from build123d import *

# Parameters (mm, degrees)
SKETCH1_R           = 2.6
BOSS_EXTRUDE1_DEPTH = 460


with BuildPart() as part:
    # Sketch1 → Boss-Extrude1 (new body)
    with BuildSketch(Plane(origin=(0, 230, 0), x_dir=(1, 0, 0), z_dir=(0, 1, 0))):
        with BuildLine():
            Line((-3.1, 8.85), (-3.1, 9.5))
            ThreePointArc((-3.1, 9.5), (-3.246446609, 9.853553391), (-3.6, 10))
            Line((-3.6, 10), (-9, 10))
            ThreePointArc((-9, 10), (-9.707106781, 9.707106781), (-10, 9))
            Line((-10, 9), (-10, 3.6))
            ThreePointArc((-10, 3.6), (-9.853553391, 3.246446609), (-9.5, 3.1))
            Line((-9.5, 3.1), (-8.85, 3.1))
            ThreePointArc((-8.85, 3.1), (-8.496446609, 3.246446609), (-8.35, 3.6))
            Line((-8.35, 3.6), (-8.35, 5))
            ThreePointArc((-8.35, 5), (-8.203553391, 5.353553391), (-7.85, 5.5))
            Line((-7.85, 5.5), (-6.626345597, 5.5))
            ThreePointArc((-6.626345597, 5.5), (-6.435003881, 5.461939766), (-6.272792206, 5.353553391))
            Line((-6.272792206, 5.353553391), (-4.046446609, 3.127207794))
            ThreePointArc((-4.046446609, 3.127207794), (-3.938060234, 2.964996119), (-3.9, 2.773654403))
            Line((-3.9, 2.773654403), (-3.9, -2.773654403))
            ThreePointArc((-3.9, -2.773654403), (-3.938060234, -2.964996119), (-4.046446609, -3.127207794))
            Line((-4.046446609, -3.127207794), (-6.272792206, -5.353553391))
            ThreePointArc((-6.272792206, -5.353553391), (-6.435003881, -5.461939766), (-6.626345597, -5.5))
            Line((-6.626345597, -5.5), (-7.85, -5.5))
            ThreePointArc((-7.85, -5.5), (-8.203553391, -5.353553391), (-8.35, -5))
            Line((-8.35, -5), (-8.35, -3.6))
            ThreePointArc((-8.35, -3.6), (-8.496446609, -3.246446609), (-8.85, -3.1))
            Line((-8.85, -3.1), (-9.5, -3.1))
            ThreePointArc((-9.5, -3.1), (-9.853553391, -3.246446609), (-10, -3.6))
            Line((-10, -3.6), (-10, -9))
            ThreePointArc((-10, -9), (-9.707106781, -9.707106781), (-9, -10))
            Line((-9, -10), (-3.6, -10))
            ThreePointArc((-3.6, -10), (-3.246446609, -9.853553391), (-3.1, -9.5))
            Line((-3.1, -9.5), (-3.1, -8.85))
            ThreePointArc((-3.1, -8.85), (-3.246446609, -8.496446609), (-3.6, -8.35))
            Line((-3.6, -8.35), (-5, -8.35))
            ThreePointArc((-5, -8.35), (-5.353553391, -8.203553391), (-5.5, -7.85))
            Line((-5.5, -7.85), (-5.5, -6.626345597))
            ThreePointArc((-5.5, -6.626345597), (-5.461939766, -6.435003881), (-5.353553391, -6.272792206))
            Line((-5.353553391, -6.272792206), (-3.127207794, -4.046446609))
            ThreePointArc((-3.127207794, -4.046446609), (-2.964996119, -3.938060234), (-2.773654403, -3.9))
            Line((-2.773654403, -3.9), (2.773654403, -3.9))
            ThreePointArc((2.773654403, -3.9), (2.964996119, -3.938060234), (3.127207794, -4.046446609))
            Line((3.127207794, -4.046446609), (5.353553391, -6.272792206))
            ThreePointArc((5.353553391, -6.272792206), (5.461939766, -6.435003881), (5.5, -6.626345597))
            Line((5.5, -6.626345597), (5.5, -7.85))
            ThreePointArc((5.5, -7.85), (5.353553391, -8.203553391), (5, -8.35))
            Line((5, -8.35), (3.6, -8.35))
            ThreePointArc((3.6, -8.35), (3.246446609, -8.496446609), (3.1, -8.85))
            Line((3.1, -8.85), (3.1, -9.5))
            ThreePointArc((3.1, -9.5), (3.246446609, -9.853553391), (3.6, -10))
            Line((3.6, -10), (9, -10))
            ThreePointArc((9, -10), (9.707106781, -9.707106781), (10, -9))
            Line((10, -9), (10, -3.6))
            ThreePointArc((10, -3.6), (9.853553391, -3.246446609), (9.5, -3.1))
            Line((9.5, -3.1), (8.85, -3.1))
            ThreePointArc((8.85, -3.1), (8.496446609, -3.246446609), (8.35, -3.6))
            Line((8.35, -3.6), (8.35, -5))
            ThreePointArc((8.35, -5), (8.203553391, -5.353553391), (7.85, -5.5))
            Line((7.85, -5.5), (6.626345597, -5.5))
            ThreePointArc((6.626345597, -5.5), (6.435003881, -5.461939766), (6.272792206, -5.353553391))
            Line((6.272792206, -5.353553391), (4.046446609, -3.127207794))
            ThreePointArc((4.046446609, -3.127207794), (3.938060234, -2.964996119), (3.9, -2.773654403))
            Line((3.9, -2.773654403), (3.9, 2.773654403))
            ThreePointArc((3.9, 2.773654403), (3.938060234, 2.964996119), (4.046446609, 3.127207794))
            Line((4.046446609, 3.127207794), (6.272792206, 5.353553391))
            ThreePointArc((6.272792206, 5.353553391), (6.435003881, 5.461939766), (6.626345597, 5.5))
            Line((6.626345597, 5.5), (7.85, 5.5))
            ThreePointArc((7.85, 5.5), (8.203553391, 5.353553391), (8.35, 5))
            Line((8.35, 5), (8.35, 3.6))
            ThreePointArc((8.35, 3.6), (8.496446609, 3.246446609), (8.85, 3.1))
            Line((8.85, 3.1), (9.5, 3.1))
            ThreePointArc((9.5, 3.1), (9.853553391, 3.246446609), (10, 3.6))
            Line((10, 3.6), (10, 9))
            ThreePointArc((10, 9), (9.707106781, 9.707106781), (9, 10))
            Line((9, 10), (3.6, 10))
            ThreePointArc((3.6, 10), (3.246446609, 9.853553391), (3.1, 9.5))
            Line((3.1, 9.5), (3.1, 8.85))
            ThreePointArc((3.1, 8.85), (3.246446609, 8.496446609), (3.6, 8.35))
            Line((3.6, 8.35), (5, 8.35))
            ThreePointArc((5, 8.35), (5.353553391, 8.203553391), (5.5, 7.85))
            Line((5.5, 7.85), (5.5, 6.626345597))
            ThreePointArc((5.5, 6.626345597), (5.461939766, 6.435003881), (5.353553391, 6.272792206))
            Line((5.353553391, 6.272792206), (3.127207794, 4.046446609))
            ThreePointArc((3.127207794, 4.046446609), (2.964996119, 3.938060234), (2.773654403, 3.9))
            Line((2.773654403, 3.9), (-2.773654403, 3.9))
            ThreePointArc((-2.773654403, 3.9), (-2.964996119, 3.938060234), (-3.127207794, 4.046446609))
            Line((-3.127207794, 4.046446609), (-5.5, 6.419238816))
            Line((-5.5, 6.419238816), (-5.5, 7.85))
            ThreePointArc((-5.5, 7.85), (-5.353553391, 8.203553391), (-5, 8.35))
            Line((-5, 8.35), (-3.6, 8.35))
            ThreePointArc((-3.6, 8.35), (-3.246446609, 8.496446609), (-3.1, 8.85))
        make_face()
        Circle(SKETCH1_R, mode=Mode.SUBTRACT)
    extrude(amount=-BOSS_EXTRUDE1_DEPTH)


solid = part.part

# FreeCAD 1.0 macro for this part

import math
import FreeCAD as App
import Part
import Sketcher
from FreeCAD import Vector

doc = App.newDocument("Part")
body = doc.addObject("PartDesign::Body", "Body")

# Sketch on XZ plane
sketch1 = body.newObject("Sketcher::SketchObject", "Sketch")
sketch1.AttachmentSupport = (doc.getObject("XZ_Plane"), [""])
sketch1.MapMode = "FlatFace"
sketch1.AttachmentOffset = App.Placement(Vector(0, 0, -230), App.Rotation())
sketch1.addGeometry([
    Part.LineSegment(Vector(-3.1, -8.85, 0), Vector(-3.1, -9.5, 0)),  # 0
    Part.ArcOfCircle(Part.Circle(Vector(-3.6, -9.5, 0), Vector(0, 0, 1), 0.5), math.radians(-90), math.radians(0)),  # 1
    Part.LineSegment(Vector(-3.6, -10, 0), Vector(-9, -10, 0)),  # 2
    Part.ArcOfCircle(Part.Circle(Vector(-9, -9, 0), Vector(0, 0, 1), 1), math.radians(-180), math.radians(-90)),  # 3
    Part.LineSegment(Vector(-10, -9, 0), Vector(-10, -3.6, 0)),  # 4
    Part.ArcOfCircle(Part.Circle(Vector(-9.5, -3.6, 0), Vector(0, 0, 1), 0.5), math.radians(90), math.radians(180)),  # 5
    Part.LineSegment(Vector(-9.5, -3.1, 0), Vector(-8.85, -3.1, 0)),  # 6
    Part.ArcOfCircle(Part.Circle(Vector(-8.85, -3.6, 0), Vector(0, 0, 1), 0.5), math.radians(0), math.radians(90)),  # 7
    Part.LineSegment(Vector(-8.35, -3.6, 0), Vector(-8.35, -5, 0)),  # 8
    Part.ArcOfCircle(Part.Circle(Vector(-7.85, -5, 0), Vector(0, 0, 1), 0.5), math.radians(180), math.radians(270)),  # 9
    Part.LineSegment(Vector(-7.85, -5.5, 0), Vector(-6.63, -5.5, 0)),  # 10
    Part.ArcOfCircle(Part.Circle(Vector(-6.63, -5, 0), Vector(0, 0, 1), 0.5), math.radians(-90), math.radians(-45)),  # 11
    Part.LineSegment(Vector(-6.27, -5.35, 0), Vector(-4.05, -3.13, 0)),  # 12
    Part.ArcOfCircle(Part.Circle(Vector(-4.4, -2.77, 0), Vector(0, 0, 1), 0.5), math.radians(-45), math.radians(0)),  # 13
    Part.LineSegment(Vector(-3.9, -2.77, 0), Vector(-3.9, 2.77, 0)),  # 14
    Part.ArcOfCircle(Part.Circle(Vector(-4.4, 2.77, 0), Vector(0, 0, 1), 0.5), math.radians(0), math.radians(45)),  # 15
    Part.LineSegment(Vector(-4.05, 3.13, 0), Vector(-6.27, 5.35, 0)),  # 16
    Part.ArcOfCircle(Part.Circle(Vector(-6.63, 5, 0), Vector(0, 0, 1), 0.5), math.radians(45), math.radians(90)),  # 17
    Part.LineSegment(Vector(-6.63, 5.5, 0), Vector(-7.85, 5.5, 0)),  # 18
    Part.ArcOfCircle(Part.Circle(Vector(-7.85, 5, 0), Vector(0, 0, 1), 0.5), math.radians(90), math.radians(180)),  # 19
    Part.LineSegment(Vector(-8.35, 5, 0), Vector(-8.35, 3.6, 0)),  # 20
    Part.ArcOfCircle(Part.Circle(Vector(-8.85, 3.6, 0), Vector(0, 0, 1), 0.5), math.radians(-90), math.radians(0)),  # 21
    Part.LineSegment(Vector(-8.85, 3.1, 0), Vector(-9.5, 3.1, 0)),  # 22
    Part.ArcOfCircle(Part.Circle(Vector(-9.5, 3.6, 0), Vector(0, 0, 1), 0.5), math.radians(180), math.radians(270)),  # 23
    Part.LineSegment(Vector(-10, 3.6, 0), Vector(-10, 9, 0)),  # 24
    Part.ArcOfCircle(Part.Circle(Vector(-9, 9, 0), Vector(0, 0, 1), 1), math.radians(90), math.radians(180)),  # 25
    Part.LineSegment(Vector(-9, 10, 0), Vector(-3.6, 10, 0)),  # 26
    Part.ArcOfCircle(Part.Circle(Vector(-3.6, 9.5, 0), Vector(0, 0, 1), 0.5), math.radians(0), math.radians(90)),  # 27
    Part.LineSegment(Vector(-3.1, 9.5, 0), Vector(-3.1, 8.85, 0)),  # 28
    Part.ArcOfCircle(Part.Circle(Vector(-3.6, 8.85, 0), Vector(0, 0, 1), 0.5), math.radians(-90), math.radians(0)),  # 29
    Part.LineSegment(Vector(-3.6, 8.35, 0), Vector(-5, 8.35, 0)),  # 30
    Part.ArcOfCircle(Part.Circle(Vector(-5, 7.85, 0), Vector(0, 0, 1), 0.5), math.radians(90), math.radians(180)),  # 31
    Part.LineSegment(Vector(-5.5, 7.85, 0), Vector(-5.5, 6.63, 0)),  # 32
    Part.ArcOfCircle(Part.Circle(Vector(-5, 6.63, 0), Vector(0, 0, 1), 0.5), math.radians(-180), math.radians(-135)),  # 33
    Part.LineSegment(Vector(-5.35, 6.27, 0), Vector(-3.13, 4.05, 0)),  # 34
    Part.ArcOfCircle(Part.Circle(Vector(-2.77, 4.4, 0), Vector(0, 0, 1), 0.5), math.radians(-135), math.radians(-90)),  # 35
    Part.LineSegment(Vector(-2.77, 3.9, 0), Vector(2.77, 3.9, 0)),  # 36
    Part.ArcOfCircle(Part.Circle(Vector(2.77, 4.4, 0), Vector(0, 0, 1), 0.5), math.radians(-90), math.radians(-45)),  # 37
    Part.LineSegment(Vector(3.13, 4.05, 0), Vector(5.35, 6.27, 0)),  # 38
    Part.ArcOfCircle(Part.Circle(Vector(5, 6.63, 0), Vector(0, 0, 1), 0.5), math.radians(-45), math.radians(0)),  # 39
    Part.LineSegment(Vector(5.5, 6.63, 0), Vector(5.5, 7.85, 0)),  # 40
    Part.ArcOfCircle(Part.Circle(Vector(5, 7.85, 0), Vector(0, 0, 1), 0.5), math.radians(0), math.radians(90)),  # 41
    Part.LineSegment(Vector(5, 8.35, 0), Vector(3.6, 8.35, 0)),  # 42
    Part.ArcOfCircle(Part.Circle(Vector(3.6, 8.85, 0), Vector(0, 0, 1), 0.5), math.radians(180), math.radians(270)),  # 43
    Part.LineSegment(Vector(3.1, 8.85, 0), Vector(3.1, 9.5, 0)),  # 44
    Part.ArcOfCircle(Part.Circle(Vector(3.6, 9.5, 0), Vector(0, 0, 1), 0.5), math.radians(90), math.radians(180)),  # 45
    Part.LineSegment(Vector(3.6, 10, 0), Vector(9, 10, 0)),  # 46
    Part.ArcOfCircle(Part.Circle(Vector(9, 9, 0), Vector(0, 0, 1), 1), math.radians(0), math.radians(90)),  # 47
    Part.LineSegment(Vector(10, 9, 0), Vector(10, 3.6, 0)),  # 48
    Part.ArcOfCircle(Part.Circle(Vector(9.5, 3.6, 0), Vector(0, 0, 1), 0.5), math.radians(-90), math.radians(0)),  # 49
    Part.LineSegment(Vector(9.5, 3.1, 0), Vector(8.85, 3.1, 0)),  # 50
    Part.ArcOfCircle(Part.Circle(Vector(8.85, 3.6, 0), Vector(0, 0, 1), 0.5), math.radians(180), math.radians(270)),  # 51
    Part.LineSegment(Vector(8.35, 3.6, 0), Vector(8.35, 5, 0)),  # 52
    Part.ArcOfCircle(Part.Circle(Vector(7.85, 5, 0), Vector(0, 0, 1), 0.5), math.radians(0), math.radians(90)),  # 53
    Part.LineSegment(Vector(7.85, 5.5, 0), Vector(6.63, 5.5, 0)),  # 54
    Part.ArcOfCircle(Part.Circle(Vector(6.63, 5, 0), Vector(0, 0, 1), 0.5), math.radians(90), math.radians(135)),  # 55
    Part.LineSegment(Vector(6.27, 5.35, 0), Vector(4.05, 3.13, 0)),  # 56
    Part.ArcOfCircle(Part.Circle(Vector(4.4, 2.77, 0), Vector(0, 0, 1), 0.5), math.radians(135), math.radians(180)),  # 57
    Part.LineSegment(Vector(3.9, 2.77, 0), Vector(3.9, -2.77, 0)),  # 58
    Part.ArcOfCircle(Part.Circle(Vector(4.4, -2.77, 0), Vector(0, 0, 1), 0.5), math.radians(-180), math.radians(-135)),  # 59
    Part.LineSegment(Vector(4.05, -3.13, 0), Vector(6.27, -5.35, 0)),  # 60
    Part.ArcOfCircle(Part.Circle(Vector(6.63, -5, 0), Vector(0, 0, 1), 0.5), math.radians(-135), math.radians(-90)),  # 61
    Part.LineSegment(Vector(6.63, -5.5, 0), Vector(7.85, -5.5, 0)),  # 62
    Part.ArcOfCircle(Part.Circle(Vector(7.85, -5, 0), Vector(0, 0, 1), 0.5), math.radians(-90), math.radians(0)),  # 63
    Part.LineSegment(Vector(8.35, -5, 0), Vector(8.35, -3.6, 0)),  # 64
    Part.ArcOfCircle(Part.Circle(Vector(8.85, -3.6, 0), Vector(0, 0, 1), 0.5), math.radians(90), math.radians(180)),  # 65
    Part.LineSegment(Vector(8.85, -3.1, 0), Vector(9.5, -3.1, 0)),  # 66
    Part.ArcOfCircle(Part.Circle(Vector(9.5, -3.6, 0), Vector(0, 0, 1), 0.5), math.radians(0), math.radians(90)),  # 67
    Part.LineSegment(Vector(10, -3.6, 0), Vector(10, -9, 0)),  # 68
    Part.ArcOfCircle(Part.Circle(Vector(9, -9, 0), Vector(0, 0, 1), 1), math.radians(-90), math.radians(0)),  # 69
    Part.LineSegment(Vector(9, -10, 0), Vector(3.6, -10, 0)),  # 70
    Part.ArcOfCircle(Part.Circle(Vector(3.6, -9.5, 0), Vector(0, 0, 1), 0.5), math.radians(180), math.radians(270)),  # 71
    Part.LineSegment(Vector(3.1, -9.5, 0), Vector(3.1, -8.85, 0)),  # 72
    Part.ArcOfCircle(Part.Circle(Vector(3.6, -8.85, 0), Vector(0, 0, 1), 0.5), math.radians(90), math.radians(180)),  # 73
    Part.LineSegment(Vector(3.6, -8.35, 0), Vector(5, -8.35, 0)),  # 74
    Part.ArcOfCircle(Part.Circle(Vector(5, -7.85, 0), Vector(0, 0, 1), 0.5), math.radians(-90), math.radians(0)),  # 75
    Part.LineSegment(Vector(5.5, -7.85, 0), Vector(5.5, -6.63, 0)),  # 76
    Part.ArcOfCircle(Part.Circle(Vector(5, -6.63, 0), Vector(0, 0, 1), 0.5), math.radians(0), math.radians(45)),  # 77
    Part.LineSegment(Vector(5.35, -6.27, 0), Vector(3.13, -4.05, 0)),  # 78
    Part.ArcOfCircle(Part.Circle(Vector(2.77, -4.4, 0), Vector(0, 0, 1), 0.5), math.radians(45), math.radians(90)),  # 79
    Part.LineSegment(Vector(2.77, -3.9, 0), Vector(-2.77, -3.9, 0)),  # 80
    Part.ArcOfCircle(Part.Circle(Vector(-2.77, -4.4, 0), Vector(0, 0, 1), 0.5), math.radians(90), math.radians(135)),  # 81
    Part.LineSegment(Vector(-3.13, -4.05, 0), Vector(-5.5, -6.42, 0)),  # 82
    Part.LineSegment(Vector(-5.5, -6.42, 0), Vector(-5.5, -7.85, 0)),  # 83
    Part.ArcOfCircle(Part.Circle(Vector(-5, -7.85, 0), Vector(0, 0, 1), 0.5), math.radians(180), math.radians(270)),  # 84
    Part.LineSegment(Vector(-5, -8.35, 0), Vector(-3.6, -8.35, 0)),  # 85
    Part.ArcOfCircle(Part.Circle(Vector(-3.6, -8.85, 0), Vector(0, 0, 1), 0.5), math.radians(0), math.radians(90)),  # 86
    Part.Circle(Vector(0, 0, 0), Vector(0, 0, 1), 2.6),  # 87
], False)
sketch1.addConstraint([
    Sketcher.Constraint("Tangent", 0, 2, 1, 2),
    Sketcher.Constraint("Tangent", 1, 1, 2, 1),
    Sketcher.Constraint("Tangent", 2, 2, 3, 2),
    Sketcher.Constraint("Tangent", 3, 1, 4, 1),
    Sketcher.Constraint("Tangent", 4, 2, 5, 2),
    Sketcher.Constraint("Tangent", 5, 1, 6, 1),
    Sketcher.Constraint("Tangent", 6, 2, 7, 2),
    Sketcher.Constraint("Tangent", 7, 1, 8, 1),
    Sketcher.Constraint("Tangent", 8, 2, 9, 1),
    Sketcher.Constraint("Tangent", 9, 2, 10, 1),
    Sketcher.Constraint("Tangent", 10, 2, 11, 1),
    Sketcher.Constraint("Tangent", 11, 2, 12, 1),
    Sketcher.Constraint("Tangent", 12, 2, 13, 1),
    Sketcher.Constraint("Tangent", 13, 2, 14, 1),
    Sketcher.Constraint("Tangent", 14, 2, 15, 1),
    Sketcher.Constraint("Tangent", 15, 2, 16, 1),
    Sketcher.Constraint("Tangent", 16, 2, 17, 1),
    Sketcher.Constraint("Tangent", 17, 2, 18, 1),
    Sketcher.Constraint("Tangent", 18, 2, 19, 1),
    Sketcher.Constraint("Tangent", 19, 2, 20, 1),
    Sketcher.Constraint("Tangent", 20, 2, 21, 2),
    Sketcher.Constraint("Tangent", 21, 1, 22, 1),
    Sketcher.Constraint("Tangent", 22, 2, 23, 2),
    Sketcher.Constraint("Tangent", 23, 1, 24, 1),
    Sketcher.Constraint("Tangent", 24, 2, 25, 2),
    Sketcher.Constraint("Tangent", 25, 1, 26, 1),
    Sketcher.Constraint("Tangent", 26, 2, 27, 2),
    Sketcher.Constraint("Tangent", 27, 1, 28, 1),
    Sketcher.Constraint("Tangent", 28, 2, 29, 2),
    Sketcher.Constraint("Tangent", 29, 1, 30, 1),
    Sketcher.Constraint("Tangent", 30, 2, 31, 1),
    Sketcher.Constraint("Tangent", 31, 2, 32, 1),
    Sketcher.Constraint("Tangent", 32, 2, 33, 1),
    Sketcher.Constraint("Tangent", 33, 2, 34, 1),
    Sketcher.Constraint("Tangent", 34, 2, 35, 1),
    Sketcher.Constraint("Tangent", 35, 2, 36, 1),
    Sketcher.Constraint("Tangent", 36, 2, 37, 1),
    Sketcher.Constraint("Tangent", 37, 2, 38, 1),
    Sketcher.Constraint("Tangent", 38, 2, 39, 1),
    Sketcher.Constraint("Tangent", 39, 2, 40, 1),
    Sketcher.Constraint("Tangent", 40, 2, 41, 1),
    Sketcher.Constraint("Tangent", 41, 2, 42, 1),
    Sketcher.Constraint("Tangent", 42, 2, 43, 2),
    Sketcher.Constraint("Tangent", 43, 1, 44, 1),
    Sketcher.Constraint("Tangent", 44, 2, 45, 2),
    Sketcher.Constraint("Tangent", 45, 1, 46, 1),
    Sketcher.Constraint("Tangent", 46, 2, 47, 2),
    Sketcher.Constraint("Tangent", 47, 1, 48, 1),
    Sketcher.Constraint("Tangent", 48, 2, 49, 2),
    Sketcher.Constraint("Tangent", 49, 1, 50, 1),
    Sketcher.Constraint("Tangent", 50, 2, 51, 2),
    Sketcher.Constraint("Tangent", 51, 1, 52, 1),
    Sketcher.Constraint("Tangent", 52, 2, 53, 1),
    Sketcher.Constraint("Tangent", 53, 2, 54, 1),
    Sketcher.Constraint("Tangent", 54, 2, 55, 1),
    Sketcher.Constraint("Tangent", 55, 2, 56, 1),
    Sketcher.Constraint("Tangent", 56, 2, 57, 1),
    Sketcher.Constraint("Tangent", 57, 2, 58, 1),
    Sketcher.Constraint("Tangent", 58, 2, 59, 1),
    Sketcher.Constraint("Tangent", 59, 2, 60, 1),
    Sketcher.Constraint("Tangent", 60, 2, 61, 1),
    Sketcher.Constraint("Tangent", 61, 2, 62, 1),
    Sketcher.Constraint("Tangent", 62, 2, 63, 1),
    Sketcher.Constraint("Tangent", 63, 2, 64, 1),
    Sketcher.Constraint("Tangent", 64, 2, 65, 2),
    Sketcher.Constraint("Tangent", 65, 1, 66, 1),
    Sketcher.Constraint("Tangent", 66, 2, 67, 2),
    Sketcher.Constraint("Tangent", 67, 1, 68, 1),
    Sketcher.Constraint("Tangent", 68, 2, 69, 2),
    Sketcher.Constraint("Tangent", 69, 1, 70, 1),
    Sketcher.Constraint("Tangent", 70, 2, 71, 2),
    Sketcher.Constraint("Tangent", 71, 1, 72, 1),
    Sketcher.Constraint("Tangent", 72, 2, 73, 2),
    Sketcher.Constraint("Tangent", 73, 1, 74, 1),
    Sketcher.Constraint("Tangent", 74, 2, 75, 1),
    Sketcher.Constraint("Tangent", 75, 2, 76, 1),
    Sketcher.Constraint("Tangent", 76, 2, 77, 1),
    Sketcher.Constraint("Tangent", 77, 2, 78, 1),
    Sketcher.Constraint("Tangent", 78, 2, 79, 1),
    Sketcher.Constraint("Tangent", 79, 2, 80, 1),
    Sketcher.Constraint("Tangent", 80, 2, 81, 1),
    Sketcher.Constraint("Tangent", 81, 2, 82, 1),
    Sketcher.Constraint("Coincident", 82, 2, 83, 1),
    Sketcher.Constraint("Tangent", 83, 2, 84, 1),
    Sketcher.Constraint("Tangent", 84, 2, 85, 1),
    Sketcher.Constraint("Tangent", 85, 2, 86, 2),
    Sketcher.Constraint("Tangent", 86, 1, 0, 1),
    Sketcher.Constraint("Vertical", 0),
    Sketcher.Constraint("Horizontal", 2),
    Sketcher.Constraint("Vertical", 4),
    Sketcher.Constraint("Horizontal", 6),
    Sketcher.Constraint("Vertical", 8),
    Sketcher.Constraint("Horizontal", 10),
    Sketcher.Constraint("Vertical", 14),
    Sketcher.Constraint("Horizontal", 18),
    Sketcher.Constraint("Vertical", 20),
    Sketcher.Constraint("Horizontal", 22),
    Sketcher.Constraint("Vertical", 24),
    Sketcher.Constraint("Horizontal", 26),
    Sketcher.Constraint("Vertical", 28),
    Sketcher.Constraint("Horizontal", 30),
    Sketcher.Constraint("Vertical", 32),
    Sketcher.Constraint("Horizontal", 36),
    Sketcher.Constraint("Vertical", 40),
    Sketcher.Constraint("Horizontal", 42),
    Sketcher.Constraint("Vertical", 44),
    Sketcher.Constraint("Horizontal", 46),
    Sketcher.Constraint("Vertical", 48),
    Sketcher.Constraint("Horizontal", 50),
    Sketcher.Constraint("Vertical", 52),
    Sketcher.Constraint("Horizontal", 54),
    Sketcher.Constraint("Vertical", 58),
    Sketcher.Constraint("Horizontal", 62),
    Sketcher.Constraint("Vertical", 64),
    Sketcher.Constraint("Horizontal", 66),
    Sketcher.Constraint("Vertical", 68),
    Sketcher.Constraint("Horizontal", 70),
    Sketcher.Constraint("Vertical", 72),
    Sketcher.Constraint("Horizontal", 74),
    Sketcher.Constraint("Vertical", 76),
    Sketcher.Constraint("Horizontal", 80),
    Sketcher.Constraint("Vertical", 83),
    Sketcher.Constraint("Horizontal", 85),
    Sketcher.Constraint("Coincident", 87, 3, -1, 1),
    Sketcher.Constraint("Equal", 1, 5),
    Sketcher.Constraint("Equal", 5, 7),
    Sketcher.Constraint("Equal", 7, 9),
    Sketcher.Constraint("Equal", 9, 11),
    Sketcher.Constraint("Equal", 11, 13),
    Sketcher.Constraint("Equal", 13, 15),
    Sketcher.Constraint("Equal", 15, 17),
    Sketcher.Constraint("Equal", 17, 19),
    Sketcher.Constraint("Equal", 19, 21),
    Sketcher.Constraint("Equal", 21, 23),
    Sketcher.Constraint("Equal", 3, 25),
    Sketcher.Constraint("Equal", 23, 27),
    Sketcher.Constraint("Equal", 27, 29),
    Sketcher.Constraint("Equal", 29, 31),
    Sketcher.Constraint("Equal", 31, 33),
    Sketcher.Constraint("Equal", 33, 35),
    Sketcher.Constraint("Equal", 35, 37),
    Sketcher.Constraint("Equal", 37, 39),
    Sketcher.Constraint("Equal", 39, 41),
    Sketcher.Constraint("Equal", 41, 43),
    Sketcher.Constraint("Equal", 43, 45),
    Sketcher.Constraint("Equal", 25, 47),
    Sketcher.Constraint("Equal", 45, 49),
    Sketcher.Constraint("Equal", 49, 51),
    Sketcher.Constraint("Equal", 51, 53),
    Sketcher.Constraint("Equal", 53, 55),
    Sketcher.Constraint("Equal", 55, 57),
    Sketcher.Constraint("Equal", 57, 59),
    Sketcher.Constraint("Equal", 59, 61),
    Sketcher.Constraint("Equal", 61, 63),
    Sketcher.Constraint("Equal", 63, 65),
    Sketcher.Constraint("Equal", 65, 67),
    Sketcher.Constraint("Equal", 47, 69),
    Sketcher.Constraint("Equal", 67, 71),
    Sketcher.Constraint("Equal", 71, 73),
    Sketcher.Constraint("Equal", 73, 75),
    Sketcher.Constraint("Equal", 75, 77),
    Sketcher.Constraint("Equal", 77, 79),
    Sketcher.Constraint("Equal", 79, 81),
    Sketcher.Constraint("Equal", 81, 84),
    Sketcher.Constraint("Equal", 84, 86),
    Sketcher.Constraint("Symmetric", 1, 3, 45, 3, -1, 1),
    Sketcher.Constraint("Symmetric", 5, 3, 49, 3, -1, 1),
    Sketcher.Constraint("Symmetric", 9, 3, 53, 3, -1, 1),
    Sketcher.Constraint("Symmetric", 13, 3, 57, 3, -1, 1),
    Sketcher.Constraint("Symmetric", 17, 3, 61, 3, -1, 1),
    Sketcher.Constraint("Symmetric", 21, 3, 65, 3, -1, 1),
    Sketcher.Constraint("Symmetric", 25, 3, 69, 3, -1, 1),
    Sketcher.Constraint("Symmetric", 29, 3, 73, 3, -1, 1),
    Sketcher.Constraint("Symmetric", 33, 3, 77, 3, -1, 1),
    Sketcher.Constraint("Symmetric", 35, 3, 79, 3, -1, 1),
    Sketcher.Constraint("Symmetric", 41, 3, 84, 3, -1, 1),
    Sketcher.Constraint("Symmetric", 37, 2, 81, 2, -1, 1),
    Sketcher.Constraint("Symmetric", 33, 3, 39, 3, -2),
    Sketcher.Constraint("Symmetric", 29, 3, 43, 3, -2),
    Sketcher.Constraint("Symmetric", 25, 3, 47, 3, -2),
    Sketcher.Constraint("Symmetric", 21, 3, 51, 3, -2),
    Sketcher.Constraint("Symmetric", 17, 3, 55, 3, -2),
    Sketcher.Constraint("Symmetric", 12, 2, 59, 2, -2),
    Sketcher.Constraint("Perpendicular", 12, 16),
    Sketcher.Constraint("Parallel", 16, 34),
    Sketcher.Constraint("Perpendicular", 34, 38),
    Sketcher.Constraint("Perpendicular", 56, 60),
    Sketcher.Constraint("Equal", 66, 0),
    Sketcher.Constraint("Equal", 70, 4),
    Sketcher.Constraint("Equal", 85, 8),
    Sketcher.Constraint("Equal", 80, 14),
    Sketcher.Constraint("Equal", 62, 32),
    Sketcher.Constraint("Equal", 16, 34),
    Sketcher.Constraint("Radius", 3, 1.0),
    Sketcher.Constraint("Diameter", 87, 5.2),
    Sketcher.Constraint("Radius", 1, 0.5),
    Sketcher.Constraint("DistanceX", 2, 2, 2, 1, 5.4),
    Sketcher.Constraint("DistanceX", 30, 2, 30, 1, 1.4),
    Sketcher.Constraint("DistanceX", 3, 3, -1, 1, 9.0),
    Sketcher.Constraint("DistanceX", 6, 1, 6, 2, 0.65),
    Sketcher.Constraint("DistanceX", 13, 3, -1, 1, 4.4),
    Sketcher.Constraint("DistanceX", 36, 1, 36, 2, 5.547309),
])
pad1 = body.newObject("PartDesign::Pad", "Pad")
pad1.Profile = sketch1
pad1.Length = 460

doc.recompute()
